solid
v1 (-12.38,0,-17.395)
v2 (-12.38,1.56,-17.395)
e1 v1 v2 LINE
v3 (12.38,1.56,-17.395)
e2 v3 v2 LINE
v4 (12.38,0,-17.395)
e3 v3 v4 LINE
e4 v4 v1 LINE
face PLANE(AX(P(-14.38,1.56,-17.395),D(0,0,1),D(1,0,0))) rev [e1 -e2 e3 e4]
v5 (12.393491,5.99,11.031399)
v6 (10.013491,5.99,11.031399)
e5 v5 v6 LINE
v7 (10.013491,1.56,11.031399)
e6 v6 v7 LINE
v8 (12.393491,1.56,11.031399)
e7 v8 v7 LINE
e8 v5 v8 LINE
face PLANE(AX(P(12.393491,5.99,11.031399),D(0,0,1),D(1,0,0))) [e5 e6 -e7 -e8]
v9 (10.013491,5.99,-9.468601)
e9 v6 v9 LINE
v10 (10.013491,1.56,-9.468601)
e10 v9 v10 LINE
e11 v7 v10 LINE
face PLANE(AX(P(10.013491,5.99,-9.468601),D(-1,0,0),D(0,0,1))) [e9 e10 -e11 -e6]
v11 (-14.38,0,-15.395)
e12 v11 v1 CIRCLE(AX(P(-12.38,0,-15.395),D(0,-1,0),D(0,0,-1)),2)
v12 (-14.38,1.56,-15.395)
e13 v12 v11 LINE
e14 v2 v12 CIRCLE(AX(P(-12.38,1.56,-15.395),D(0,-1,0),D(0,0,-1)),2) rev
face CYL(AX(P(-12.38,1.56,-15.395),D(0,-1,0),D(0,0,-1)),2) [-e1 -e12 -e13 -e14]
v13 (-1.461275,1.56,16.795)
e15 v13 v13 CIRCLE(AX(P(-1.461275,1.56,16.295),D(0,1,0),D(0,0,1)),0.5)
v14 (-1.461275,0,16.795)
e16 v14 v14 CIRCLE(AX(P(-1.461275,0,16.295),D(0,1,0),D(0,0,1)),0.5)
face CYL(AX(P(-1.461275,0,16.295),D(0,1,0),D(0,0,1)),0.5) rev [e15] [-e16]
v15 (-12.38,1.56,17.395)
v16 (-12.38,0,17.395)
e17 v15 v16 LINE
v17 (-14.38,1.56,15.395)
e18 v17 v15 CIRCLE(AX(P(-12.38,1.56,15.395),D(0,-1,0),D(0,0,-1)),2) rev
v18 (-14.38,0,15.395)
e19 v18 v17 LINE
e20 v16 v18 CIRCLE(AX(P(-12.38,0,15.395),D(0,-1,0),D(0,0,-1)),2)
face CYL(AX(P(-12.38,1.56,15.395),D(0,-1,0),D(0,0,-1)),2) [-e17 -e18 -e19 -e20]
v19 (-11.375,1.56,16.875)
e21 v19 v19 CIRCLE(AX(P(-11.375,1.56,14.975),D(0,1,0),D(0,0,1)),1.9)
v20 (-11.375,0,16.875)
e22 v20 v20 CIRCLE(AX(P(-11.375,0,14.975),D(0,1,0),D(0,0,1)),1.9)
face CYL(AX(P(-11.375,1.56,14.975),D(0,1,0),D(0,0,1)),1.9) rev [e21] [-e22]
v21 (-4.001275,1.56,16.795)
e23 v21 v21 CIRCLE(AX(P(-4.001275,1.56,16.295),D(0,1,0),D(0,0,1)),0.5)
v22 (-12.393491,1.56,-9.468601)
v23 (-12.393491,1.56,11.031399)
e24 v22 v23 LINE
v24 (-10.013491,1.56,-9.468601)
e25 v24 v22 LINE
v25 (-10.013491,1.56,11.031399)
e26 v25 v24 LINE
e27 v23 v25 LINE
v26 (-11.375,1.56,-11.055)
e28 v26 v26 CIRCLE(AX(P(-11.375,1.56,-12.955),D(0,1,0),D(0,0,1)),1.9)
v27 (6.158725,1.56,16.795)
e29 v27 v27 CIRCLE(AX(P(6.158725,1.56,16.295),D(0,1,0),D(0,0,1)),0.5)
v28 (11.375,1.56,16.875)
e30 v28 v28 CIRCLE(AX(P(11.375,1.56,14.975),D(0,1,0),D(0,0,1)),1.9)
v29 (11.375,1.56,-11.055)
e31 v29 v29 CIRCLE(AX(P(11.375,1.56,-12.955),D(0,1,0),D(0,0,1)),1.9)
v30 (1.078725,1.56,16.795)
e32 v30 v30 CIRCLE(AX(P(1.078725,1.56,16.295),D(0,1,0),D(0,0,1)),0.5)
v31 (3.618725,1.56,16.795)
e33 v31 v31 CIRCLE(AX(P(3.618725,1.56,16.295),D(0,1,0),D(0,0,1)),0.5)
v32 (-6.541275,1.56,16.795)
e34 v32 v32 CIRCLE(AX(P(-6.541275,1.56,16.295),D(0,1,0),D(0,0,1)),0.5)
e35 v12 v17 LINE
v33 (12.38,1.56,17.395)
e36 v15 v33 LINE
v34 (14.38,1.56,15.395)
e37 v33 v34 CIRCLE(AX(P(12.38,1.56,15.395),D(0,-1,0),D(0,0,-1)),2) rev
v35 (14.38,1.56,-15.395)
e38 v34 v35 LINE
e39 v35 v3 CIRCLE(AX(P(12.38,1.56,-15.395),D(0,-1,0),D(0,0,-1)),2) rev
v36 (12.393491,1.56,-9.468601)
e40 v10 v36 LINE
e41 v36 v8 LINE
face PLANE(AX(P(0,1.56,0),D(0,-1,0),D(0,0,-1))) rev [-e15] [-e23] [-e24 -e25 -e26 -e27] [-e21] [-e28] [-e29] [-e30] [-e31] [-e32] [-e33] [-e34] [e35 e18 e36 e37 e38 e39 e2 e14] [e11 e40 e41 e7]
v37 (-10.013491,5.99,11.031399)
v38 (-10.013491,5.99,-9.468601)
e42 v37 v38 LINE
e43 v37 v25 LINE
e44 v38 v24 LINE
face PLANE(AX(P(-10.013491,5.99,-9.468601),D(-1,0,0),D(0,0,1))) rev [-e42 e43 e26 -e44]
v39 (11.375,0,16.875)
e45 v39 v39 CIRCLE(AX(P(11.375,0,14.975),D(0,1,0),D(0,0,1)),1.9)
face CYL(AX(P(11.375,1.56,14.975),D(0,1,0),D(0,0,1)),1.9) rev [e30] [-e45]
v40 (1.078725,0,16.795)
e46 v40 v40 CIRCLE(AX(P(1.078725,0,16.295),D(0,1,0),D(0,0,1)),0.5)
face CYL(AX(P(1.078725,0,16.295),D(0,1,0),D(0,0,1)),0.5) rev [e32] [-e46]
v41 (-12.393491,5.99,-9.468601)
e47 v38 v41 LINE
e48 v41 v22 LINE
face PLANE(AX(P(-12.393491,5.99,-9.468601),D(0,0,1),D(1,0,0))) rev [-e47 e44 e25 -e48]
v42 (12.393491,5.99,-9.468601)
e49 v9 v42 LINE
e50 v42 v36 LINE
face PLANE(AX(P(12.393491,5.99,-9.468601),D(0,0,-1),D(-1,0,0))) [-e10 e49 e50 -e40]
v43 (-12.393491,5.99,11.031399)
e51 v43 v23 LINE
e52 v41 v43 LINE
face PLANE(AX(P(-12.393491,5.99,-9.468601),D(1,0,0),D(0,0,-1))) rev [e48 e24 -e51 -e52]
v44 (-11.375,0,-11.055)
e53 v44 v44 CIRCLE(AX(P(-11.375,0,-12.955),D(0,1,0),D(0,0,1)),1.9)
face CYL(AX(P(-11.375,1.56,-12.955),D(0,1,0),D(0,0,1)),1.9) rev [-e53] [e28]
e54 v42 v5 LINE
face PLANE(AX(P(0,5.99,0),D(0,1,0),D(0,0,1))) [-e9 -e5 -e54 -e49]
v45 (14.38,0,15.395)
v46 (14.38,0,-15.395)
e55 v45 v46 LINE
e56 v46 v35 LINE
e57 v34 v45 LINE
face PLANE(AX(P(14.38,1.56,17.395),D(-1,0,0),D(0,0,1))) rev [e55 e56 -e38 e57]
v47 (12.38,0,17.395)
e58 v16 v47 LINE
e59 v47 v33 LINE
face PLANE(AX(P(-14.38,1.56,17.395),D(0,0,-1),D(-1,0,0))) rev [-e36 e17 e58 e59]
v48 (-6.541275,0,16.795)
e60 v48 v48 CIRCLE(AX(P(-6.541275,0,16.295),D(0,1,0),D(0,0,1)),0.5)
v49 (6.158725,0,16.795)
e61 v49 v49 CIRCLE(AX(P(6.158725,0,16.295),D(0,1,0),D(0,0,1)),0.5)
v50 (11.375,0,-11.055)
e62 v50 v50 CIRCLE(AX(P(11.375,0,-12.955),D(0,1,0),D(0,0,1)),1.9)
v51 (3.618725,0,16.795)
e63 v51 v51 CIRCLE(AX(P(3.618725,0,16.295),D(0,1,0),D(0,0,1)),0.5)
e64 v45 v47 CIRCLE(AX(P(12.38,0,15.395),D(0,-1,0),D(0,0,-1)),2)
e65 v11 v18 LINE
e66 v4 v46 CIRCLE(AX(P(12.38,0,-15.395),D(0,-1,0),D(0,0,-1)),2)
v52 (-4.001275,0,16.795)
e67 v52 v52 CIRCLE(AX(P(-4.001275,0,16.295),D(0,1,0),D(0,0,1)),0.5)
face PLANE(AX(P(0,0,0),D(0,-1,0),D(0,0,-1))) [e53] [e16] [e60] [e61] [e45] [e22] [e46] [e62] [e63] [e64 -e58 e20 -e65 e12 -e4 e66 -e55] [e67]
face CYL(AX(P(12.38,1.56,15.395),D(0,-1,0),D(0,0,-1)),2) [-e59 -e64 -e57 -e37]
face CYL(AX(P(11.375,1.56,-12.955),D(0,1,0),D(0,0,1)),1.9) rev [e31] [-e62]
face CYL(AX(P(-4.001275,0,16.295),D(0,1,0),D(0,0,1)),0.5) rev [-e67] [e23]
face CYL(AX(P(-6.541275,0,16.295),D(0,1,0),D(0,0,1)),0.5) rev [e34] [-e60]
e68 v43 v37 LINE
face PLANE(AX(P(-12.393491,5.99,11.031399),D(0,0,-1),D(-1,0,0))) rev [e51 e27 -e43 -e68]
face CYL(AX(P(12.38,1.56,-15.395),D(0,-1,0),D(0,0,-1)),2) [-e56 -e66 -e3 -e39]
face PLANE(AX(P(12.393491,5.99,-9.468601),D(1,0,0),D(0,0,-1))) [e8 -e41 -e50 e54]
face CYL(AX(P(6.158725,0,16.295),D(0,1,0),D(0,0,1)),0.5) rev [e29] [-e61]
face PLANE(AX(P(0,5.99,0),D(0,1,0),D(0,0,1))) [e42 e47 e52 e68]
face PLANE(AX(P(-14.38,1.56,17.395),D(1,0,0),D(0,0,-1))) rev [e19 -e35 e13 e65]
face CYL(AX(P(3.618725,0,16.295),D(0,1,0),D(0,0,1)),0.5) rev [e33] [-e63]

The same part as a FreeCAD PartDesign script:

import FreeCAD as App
import Part
import Sketcher
from FreeCAD import Vector
Q = App.Units.Quantity


def edges_at(feature, points):
    """Names of the edges that pass closest to the given points."""
    edges = feature.Shape.Edges
    near = lambda p: min(range(len(edges)), key=lambda i: edges[i].distToShape(Part.Vertex(*p))[0])
    return sorted({f"Edge{near(p) + 1}" for p in points})

doc = App.newDocument("Part")
body = doc.addObject("PartDesign::Body", "Body")

# Sketch on XZ plane
sketch1 = body.newObject("Sketcher::SketchObject", "Sketch")
sketch1.AttachmentSupport = (doc.getObject("XZ_Plane"), [""])
sketch1.MapMode = "FlatFace"
sketch1.addGeometry([
    Part.LineSegment(Vector(-14, -17, 0), Vector(-14, 17, 0)),
    Part.LineSegment(Vector(-14, 17, 0), Vector(14, 17, 0)),
    Part.LineSegment(Vector(14, 17, 0), Vector(14, -17, 0)),
    Part.LineSegment(Vector(14, -17, 0), Vector(-14, -17, 0)),
], False)
sketch1.addConstraint([
    Sketcher.Constraint("Coincident", 0, 2, 1, 1),
    Sketcher.Constraint("Coincident", 1, 2, 2, 1),
    Sketcher.Constraint("Coincident", 2, 2, 3, 1),
    Sketcher.Constraint("Coincident", 3, 2, 0, 1),
    Sketcher.Constraint("Vertical", 0),
    Sketcher.Constraint("Horizontal", 1),
    Sketcher.Constraint("Vertical", 2),
    Sketcher.Constraint("Horizontal", 3),
    Sketcher.Constraint("Symmetric", 0, 2, 2, 2, -1, 1),
    Sketcher.Constraint("DistanceX", 1, 1, 1, 2, Q("28.76 mm")),
    Sketcher.Constraint("DistanceY", 0, 1, 0, 2, Q("34.79 mm")),
])
pad1 = body.newObject("PartDesign::Pad", "Pad")
pad1.Profile = sketch1
pad1.Length = 1.56
pad1.Reversed = True

# Sketch on XZ plane
sketch2 = body.newObject("Sketcher::SketchObject", "Sketch001")
sketch2.AttachmentSupport = (doc.getObject("XZ_Plane"), [""])
sketch2.MapMode = "FlatFace"
sketch2.AttachmentOffset = App.Placement(Vector(0, 0, -1.56), App.Rotation())
sketch2.addGeometry([
    Part.Circle(Vector(-11.4, -13, 0), Vector(0, 0, 1), 1.9),
    Part.Circle(Vector(11.4, -13, 0), Vector(0, 0, 1), 1.9),
    Part.Circle(Vector(-11.4, 15, 0), Vector(0, 0, 1), 1.9),
    Part.Circle(Vector(11.4, 15, 0), Vector(0, 0, 1), 1.9),
], False)
sketch2.addConstraint([
    Sketcher.Constraint("Equal", 0, 1),
    Sketcher.Constraint("Equal", 1, 2),
    Sketcher.Constraint("Equal", 2, 3),
    Sketcher.Constraint("Symmetric", 0, 3, 1, 3, -2),
    Sketcher.Constraint("Symmetric", 2, 3, 3, 3, -2),
    Sketcher.Constraint("Vertical", 0, 3, 2, 3),
    Sketcher.Constraint("Diameter", 0, Q("3.8 mm")),
    Sketcher.Constraint("DistanceX", 0, 3, 1, 3, Q("22.75 mm")),
    Sketcher.Constraint("DistanceY", 0, 3, 2, 3, Q("27.93 mm")),
    Sketcher.Constraint("DistanceY", 0, 3, -1, 1, Q("12.955 mm")),
])
doc.recompute()
hole = body.newObject("PartDesign::Hole", "Hole")
hole.Profile = sketch2
hole.ThreadType = "None"
hole.Diameter = 3.8
hole.DepthType = "ThroughAll"
hole.Reversed = True

# Sketch on XZ plane
sketch3 = body.newObject("Sketcher::SketchObject", "Sketch002")
sketch3.AttachmentSupport = (doc.getObject("XZ_Plane"), [""])
sketch3.MapMode = "FlatFace"
sketch3.AttachmentOffset = App.Placement(Vector(0, 0, -1.56), App.Rotation())
sketch3.addGeometry([
    Part.LineSegment(Vector(-12.4, -9.5, 0), Vector(-12.4, 11, 0)),
    Part.LineSegment(Vector(-12.4, 11, 0), Vector(-10, 11, 0)),
    Part.LineSegment(Vector(-10, 11, 0), Vector(-10, -9.5, 0)),
    Part.LineSegment(Vector(-10, -9.5, 0), Vector(-12.4, -9.5, 0)),
], False)
sketch3.addConstraint([
    Sketcher.Constraint("Coincident", 0, 2, 1, 1),
    Sketcher.Constraint("Coincident", 1, 2, 2, 1),
    Sketcher.Constraint("Coincident", 2, 2, 3, 1),
    Sketcher.Constraint("Coincident", 3, 2, 0, 1),
    Sketcher.Constraint("Vertical", 0),
    Sketcher.Constraint("Horizontal", 1),
    Sketcher.Constraint("Vertical", 2),
    Sketcher.Constraint("Horizontal", 3),
    Sketcher.Constraint("DistanceY", 0, 1, 0, 2, Q("20.5 mm")),
    Sketcher.Constraint("DistanceX", 1, 1, 1, 2, Q("2.38 mm")),
    Sketcher.Constraint("DistanceY", -1, 1, 0, 2, Q("11.031399 mm")),
    Sketcher.Constraint("DistanceX", 0, 2, -1, 1, Q("12.393491 mm")),
])
pad2 = body.newObject("PartDesign::Pad", "Pad001")
pad2.Profile = sketch3
pad2.Length = 4.43
pad2.Reversed = True

# Sketch on XZ plane
sketch4 = body.newObject("Sketcher::SketchObject", "Sketch003")
sketch4.AttachmentSupport = (doc.getObject("XZ_Plane"), [""])
sketch4.MapMode = "FlatFace"
sketch4.AttachmentOffset = App.Placement(Vector(0, 0, -1.56), App.Rotation())
sketch4.addGeometry([
    Part.Circle(Vector(-6.5, 16.3, 0), Vector(0, 0, 1), 0.5),  # 0
    Part.Circle(Vector(-4, 16.3, 0), Vector(0, 0, 1), 0.5),  # 1
    Part.Circle(Vector(-1.5, 16.3, 0), Vector(0, 0, 1), 0.5),  # 2
    Part.Circle(Vector(1.1, 16.3, 0), Vector(0, 0, 1), 0.5),  # 3
    Part.Circle(Vector(3.6, 16.3, 0), Vector(0, 0, 1), 0.5),  # 4
    Part.Circle(Vector(6.2, 16.3, 0), Vector(0, 0, 1), 0.5),  # 5
], False)
sketch4.addConstraint([
    Sketcher.Constraint("Equal", 0, 1),
    Sketcher.Constraint("Equal", 1, 2),
    Sketcher.Constraint("Equal", 2, 3),
    Sketcher.Constraint("Equal", 3, 4),
    Sketcher.Constraint("Equal", 4, 5),
    Sketcher.Constraint("Horizontal", 0, 3, 1, 3),
    Sketcher.Constraint("Horizontal", 1, 3, 2, 3),
    Sketcher.Constraint("Horizontal", 2, 3, 3, 3),
    Sketcher.Constraint("Horizontal", 3, 3, 4, 3),
    Sketcher.Constraint("Horizontal", 4, 3, 5, 3),
    Sketcher.Constraint("Diameter", 0, Q("1 mm")),
    Sketcher.Constraint("DistanceX", 0, 3, 5, 3, Q("12.7 mm")),
    Sketcher.Constraint("DistanceX", 0, 3, 1, 3, Q("2.54 mm")),
    Sketcher.Constraint("DistanceX", 1, 3, 2, 3, Q("2.54 mm")),
    Sketcher.Constraint("DistanceX", 2, 3, 3, 3, Q("2.54 mm")),
    Sketcher.Constraint("DistanceX", 3, 3, 4, 3, Q("2.54 mm")),
    Sketcher.Constraint("DistanceY", -1, 1, 0, 3, Q("16.295 mm")),
    Sketcher.Constraint("DistanceX", 0, 3, -1, 1, Q("6.541275 mm")),
])
pocket1 = body.newObject("PartDesign::Pocket", "Pocket")
pocket1.Profile = sketch4
pocket1.Type = "ThroughAll"
pocket1.Reversed = True
doc.recompute()

mirrored = body.newObject("PartDesign::Mirrored", "Mirrored")
mirrored.Originals = [pad2]
mirrored.MirrorPlane = (doc.getObject("YZ_Plane"), [""])
body.Tip = mirrored
doc.recompute()

fillet = body.newObject("PartDesign::Fillet", "Fillet")
fillet.Base = (mirrored, edges_at(mirrored, [
    (14.38, 0.78, 17.395),
    (-14.38, 0.78, 17.395),
    (-14.38, 0.78, -17.395),
    (14.38, 0.78, -17.395),
]))
fillet.Radius = 2

doc.recompute()
